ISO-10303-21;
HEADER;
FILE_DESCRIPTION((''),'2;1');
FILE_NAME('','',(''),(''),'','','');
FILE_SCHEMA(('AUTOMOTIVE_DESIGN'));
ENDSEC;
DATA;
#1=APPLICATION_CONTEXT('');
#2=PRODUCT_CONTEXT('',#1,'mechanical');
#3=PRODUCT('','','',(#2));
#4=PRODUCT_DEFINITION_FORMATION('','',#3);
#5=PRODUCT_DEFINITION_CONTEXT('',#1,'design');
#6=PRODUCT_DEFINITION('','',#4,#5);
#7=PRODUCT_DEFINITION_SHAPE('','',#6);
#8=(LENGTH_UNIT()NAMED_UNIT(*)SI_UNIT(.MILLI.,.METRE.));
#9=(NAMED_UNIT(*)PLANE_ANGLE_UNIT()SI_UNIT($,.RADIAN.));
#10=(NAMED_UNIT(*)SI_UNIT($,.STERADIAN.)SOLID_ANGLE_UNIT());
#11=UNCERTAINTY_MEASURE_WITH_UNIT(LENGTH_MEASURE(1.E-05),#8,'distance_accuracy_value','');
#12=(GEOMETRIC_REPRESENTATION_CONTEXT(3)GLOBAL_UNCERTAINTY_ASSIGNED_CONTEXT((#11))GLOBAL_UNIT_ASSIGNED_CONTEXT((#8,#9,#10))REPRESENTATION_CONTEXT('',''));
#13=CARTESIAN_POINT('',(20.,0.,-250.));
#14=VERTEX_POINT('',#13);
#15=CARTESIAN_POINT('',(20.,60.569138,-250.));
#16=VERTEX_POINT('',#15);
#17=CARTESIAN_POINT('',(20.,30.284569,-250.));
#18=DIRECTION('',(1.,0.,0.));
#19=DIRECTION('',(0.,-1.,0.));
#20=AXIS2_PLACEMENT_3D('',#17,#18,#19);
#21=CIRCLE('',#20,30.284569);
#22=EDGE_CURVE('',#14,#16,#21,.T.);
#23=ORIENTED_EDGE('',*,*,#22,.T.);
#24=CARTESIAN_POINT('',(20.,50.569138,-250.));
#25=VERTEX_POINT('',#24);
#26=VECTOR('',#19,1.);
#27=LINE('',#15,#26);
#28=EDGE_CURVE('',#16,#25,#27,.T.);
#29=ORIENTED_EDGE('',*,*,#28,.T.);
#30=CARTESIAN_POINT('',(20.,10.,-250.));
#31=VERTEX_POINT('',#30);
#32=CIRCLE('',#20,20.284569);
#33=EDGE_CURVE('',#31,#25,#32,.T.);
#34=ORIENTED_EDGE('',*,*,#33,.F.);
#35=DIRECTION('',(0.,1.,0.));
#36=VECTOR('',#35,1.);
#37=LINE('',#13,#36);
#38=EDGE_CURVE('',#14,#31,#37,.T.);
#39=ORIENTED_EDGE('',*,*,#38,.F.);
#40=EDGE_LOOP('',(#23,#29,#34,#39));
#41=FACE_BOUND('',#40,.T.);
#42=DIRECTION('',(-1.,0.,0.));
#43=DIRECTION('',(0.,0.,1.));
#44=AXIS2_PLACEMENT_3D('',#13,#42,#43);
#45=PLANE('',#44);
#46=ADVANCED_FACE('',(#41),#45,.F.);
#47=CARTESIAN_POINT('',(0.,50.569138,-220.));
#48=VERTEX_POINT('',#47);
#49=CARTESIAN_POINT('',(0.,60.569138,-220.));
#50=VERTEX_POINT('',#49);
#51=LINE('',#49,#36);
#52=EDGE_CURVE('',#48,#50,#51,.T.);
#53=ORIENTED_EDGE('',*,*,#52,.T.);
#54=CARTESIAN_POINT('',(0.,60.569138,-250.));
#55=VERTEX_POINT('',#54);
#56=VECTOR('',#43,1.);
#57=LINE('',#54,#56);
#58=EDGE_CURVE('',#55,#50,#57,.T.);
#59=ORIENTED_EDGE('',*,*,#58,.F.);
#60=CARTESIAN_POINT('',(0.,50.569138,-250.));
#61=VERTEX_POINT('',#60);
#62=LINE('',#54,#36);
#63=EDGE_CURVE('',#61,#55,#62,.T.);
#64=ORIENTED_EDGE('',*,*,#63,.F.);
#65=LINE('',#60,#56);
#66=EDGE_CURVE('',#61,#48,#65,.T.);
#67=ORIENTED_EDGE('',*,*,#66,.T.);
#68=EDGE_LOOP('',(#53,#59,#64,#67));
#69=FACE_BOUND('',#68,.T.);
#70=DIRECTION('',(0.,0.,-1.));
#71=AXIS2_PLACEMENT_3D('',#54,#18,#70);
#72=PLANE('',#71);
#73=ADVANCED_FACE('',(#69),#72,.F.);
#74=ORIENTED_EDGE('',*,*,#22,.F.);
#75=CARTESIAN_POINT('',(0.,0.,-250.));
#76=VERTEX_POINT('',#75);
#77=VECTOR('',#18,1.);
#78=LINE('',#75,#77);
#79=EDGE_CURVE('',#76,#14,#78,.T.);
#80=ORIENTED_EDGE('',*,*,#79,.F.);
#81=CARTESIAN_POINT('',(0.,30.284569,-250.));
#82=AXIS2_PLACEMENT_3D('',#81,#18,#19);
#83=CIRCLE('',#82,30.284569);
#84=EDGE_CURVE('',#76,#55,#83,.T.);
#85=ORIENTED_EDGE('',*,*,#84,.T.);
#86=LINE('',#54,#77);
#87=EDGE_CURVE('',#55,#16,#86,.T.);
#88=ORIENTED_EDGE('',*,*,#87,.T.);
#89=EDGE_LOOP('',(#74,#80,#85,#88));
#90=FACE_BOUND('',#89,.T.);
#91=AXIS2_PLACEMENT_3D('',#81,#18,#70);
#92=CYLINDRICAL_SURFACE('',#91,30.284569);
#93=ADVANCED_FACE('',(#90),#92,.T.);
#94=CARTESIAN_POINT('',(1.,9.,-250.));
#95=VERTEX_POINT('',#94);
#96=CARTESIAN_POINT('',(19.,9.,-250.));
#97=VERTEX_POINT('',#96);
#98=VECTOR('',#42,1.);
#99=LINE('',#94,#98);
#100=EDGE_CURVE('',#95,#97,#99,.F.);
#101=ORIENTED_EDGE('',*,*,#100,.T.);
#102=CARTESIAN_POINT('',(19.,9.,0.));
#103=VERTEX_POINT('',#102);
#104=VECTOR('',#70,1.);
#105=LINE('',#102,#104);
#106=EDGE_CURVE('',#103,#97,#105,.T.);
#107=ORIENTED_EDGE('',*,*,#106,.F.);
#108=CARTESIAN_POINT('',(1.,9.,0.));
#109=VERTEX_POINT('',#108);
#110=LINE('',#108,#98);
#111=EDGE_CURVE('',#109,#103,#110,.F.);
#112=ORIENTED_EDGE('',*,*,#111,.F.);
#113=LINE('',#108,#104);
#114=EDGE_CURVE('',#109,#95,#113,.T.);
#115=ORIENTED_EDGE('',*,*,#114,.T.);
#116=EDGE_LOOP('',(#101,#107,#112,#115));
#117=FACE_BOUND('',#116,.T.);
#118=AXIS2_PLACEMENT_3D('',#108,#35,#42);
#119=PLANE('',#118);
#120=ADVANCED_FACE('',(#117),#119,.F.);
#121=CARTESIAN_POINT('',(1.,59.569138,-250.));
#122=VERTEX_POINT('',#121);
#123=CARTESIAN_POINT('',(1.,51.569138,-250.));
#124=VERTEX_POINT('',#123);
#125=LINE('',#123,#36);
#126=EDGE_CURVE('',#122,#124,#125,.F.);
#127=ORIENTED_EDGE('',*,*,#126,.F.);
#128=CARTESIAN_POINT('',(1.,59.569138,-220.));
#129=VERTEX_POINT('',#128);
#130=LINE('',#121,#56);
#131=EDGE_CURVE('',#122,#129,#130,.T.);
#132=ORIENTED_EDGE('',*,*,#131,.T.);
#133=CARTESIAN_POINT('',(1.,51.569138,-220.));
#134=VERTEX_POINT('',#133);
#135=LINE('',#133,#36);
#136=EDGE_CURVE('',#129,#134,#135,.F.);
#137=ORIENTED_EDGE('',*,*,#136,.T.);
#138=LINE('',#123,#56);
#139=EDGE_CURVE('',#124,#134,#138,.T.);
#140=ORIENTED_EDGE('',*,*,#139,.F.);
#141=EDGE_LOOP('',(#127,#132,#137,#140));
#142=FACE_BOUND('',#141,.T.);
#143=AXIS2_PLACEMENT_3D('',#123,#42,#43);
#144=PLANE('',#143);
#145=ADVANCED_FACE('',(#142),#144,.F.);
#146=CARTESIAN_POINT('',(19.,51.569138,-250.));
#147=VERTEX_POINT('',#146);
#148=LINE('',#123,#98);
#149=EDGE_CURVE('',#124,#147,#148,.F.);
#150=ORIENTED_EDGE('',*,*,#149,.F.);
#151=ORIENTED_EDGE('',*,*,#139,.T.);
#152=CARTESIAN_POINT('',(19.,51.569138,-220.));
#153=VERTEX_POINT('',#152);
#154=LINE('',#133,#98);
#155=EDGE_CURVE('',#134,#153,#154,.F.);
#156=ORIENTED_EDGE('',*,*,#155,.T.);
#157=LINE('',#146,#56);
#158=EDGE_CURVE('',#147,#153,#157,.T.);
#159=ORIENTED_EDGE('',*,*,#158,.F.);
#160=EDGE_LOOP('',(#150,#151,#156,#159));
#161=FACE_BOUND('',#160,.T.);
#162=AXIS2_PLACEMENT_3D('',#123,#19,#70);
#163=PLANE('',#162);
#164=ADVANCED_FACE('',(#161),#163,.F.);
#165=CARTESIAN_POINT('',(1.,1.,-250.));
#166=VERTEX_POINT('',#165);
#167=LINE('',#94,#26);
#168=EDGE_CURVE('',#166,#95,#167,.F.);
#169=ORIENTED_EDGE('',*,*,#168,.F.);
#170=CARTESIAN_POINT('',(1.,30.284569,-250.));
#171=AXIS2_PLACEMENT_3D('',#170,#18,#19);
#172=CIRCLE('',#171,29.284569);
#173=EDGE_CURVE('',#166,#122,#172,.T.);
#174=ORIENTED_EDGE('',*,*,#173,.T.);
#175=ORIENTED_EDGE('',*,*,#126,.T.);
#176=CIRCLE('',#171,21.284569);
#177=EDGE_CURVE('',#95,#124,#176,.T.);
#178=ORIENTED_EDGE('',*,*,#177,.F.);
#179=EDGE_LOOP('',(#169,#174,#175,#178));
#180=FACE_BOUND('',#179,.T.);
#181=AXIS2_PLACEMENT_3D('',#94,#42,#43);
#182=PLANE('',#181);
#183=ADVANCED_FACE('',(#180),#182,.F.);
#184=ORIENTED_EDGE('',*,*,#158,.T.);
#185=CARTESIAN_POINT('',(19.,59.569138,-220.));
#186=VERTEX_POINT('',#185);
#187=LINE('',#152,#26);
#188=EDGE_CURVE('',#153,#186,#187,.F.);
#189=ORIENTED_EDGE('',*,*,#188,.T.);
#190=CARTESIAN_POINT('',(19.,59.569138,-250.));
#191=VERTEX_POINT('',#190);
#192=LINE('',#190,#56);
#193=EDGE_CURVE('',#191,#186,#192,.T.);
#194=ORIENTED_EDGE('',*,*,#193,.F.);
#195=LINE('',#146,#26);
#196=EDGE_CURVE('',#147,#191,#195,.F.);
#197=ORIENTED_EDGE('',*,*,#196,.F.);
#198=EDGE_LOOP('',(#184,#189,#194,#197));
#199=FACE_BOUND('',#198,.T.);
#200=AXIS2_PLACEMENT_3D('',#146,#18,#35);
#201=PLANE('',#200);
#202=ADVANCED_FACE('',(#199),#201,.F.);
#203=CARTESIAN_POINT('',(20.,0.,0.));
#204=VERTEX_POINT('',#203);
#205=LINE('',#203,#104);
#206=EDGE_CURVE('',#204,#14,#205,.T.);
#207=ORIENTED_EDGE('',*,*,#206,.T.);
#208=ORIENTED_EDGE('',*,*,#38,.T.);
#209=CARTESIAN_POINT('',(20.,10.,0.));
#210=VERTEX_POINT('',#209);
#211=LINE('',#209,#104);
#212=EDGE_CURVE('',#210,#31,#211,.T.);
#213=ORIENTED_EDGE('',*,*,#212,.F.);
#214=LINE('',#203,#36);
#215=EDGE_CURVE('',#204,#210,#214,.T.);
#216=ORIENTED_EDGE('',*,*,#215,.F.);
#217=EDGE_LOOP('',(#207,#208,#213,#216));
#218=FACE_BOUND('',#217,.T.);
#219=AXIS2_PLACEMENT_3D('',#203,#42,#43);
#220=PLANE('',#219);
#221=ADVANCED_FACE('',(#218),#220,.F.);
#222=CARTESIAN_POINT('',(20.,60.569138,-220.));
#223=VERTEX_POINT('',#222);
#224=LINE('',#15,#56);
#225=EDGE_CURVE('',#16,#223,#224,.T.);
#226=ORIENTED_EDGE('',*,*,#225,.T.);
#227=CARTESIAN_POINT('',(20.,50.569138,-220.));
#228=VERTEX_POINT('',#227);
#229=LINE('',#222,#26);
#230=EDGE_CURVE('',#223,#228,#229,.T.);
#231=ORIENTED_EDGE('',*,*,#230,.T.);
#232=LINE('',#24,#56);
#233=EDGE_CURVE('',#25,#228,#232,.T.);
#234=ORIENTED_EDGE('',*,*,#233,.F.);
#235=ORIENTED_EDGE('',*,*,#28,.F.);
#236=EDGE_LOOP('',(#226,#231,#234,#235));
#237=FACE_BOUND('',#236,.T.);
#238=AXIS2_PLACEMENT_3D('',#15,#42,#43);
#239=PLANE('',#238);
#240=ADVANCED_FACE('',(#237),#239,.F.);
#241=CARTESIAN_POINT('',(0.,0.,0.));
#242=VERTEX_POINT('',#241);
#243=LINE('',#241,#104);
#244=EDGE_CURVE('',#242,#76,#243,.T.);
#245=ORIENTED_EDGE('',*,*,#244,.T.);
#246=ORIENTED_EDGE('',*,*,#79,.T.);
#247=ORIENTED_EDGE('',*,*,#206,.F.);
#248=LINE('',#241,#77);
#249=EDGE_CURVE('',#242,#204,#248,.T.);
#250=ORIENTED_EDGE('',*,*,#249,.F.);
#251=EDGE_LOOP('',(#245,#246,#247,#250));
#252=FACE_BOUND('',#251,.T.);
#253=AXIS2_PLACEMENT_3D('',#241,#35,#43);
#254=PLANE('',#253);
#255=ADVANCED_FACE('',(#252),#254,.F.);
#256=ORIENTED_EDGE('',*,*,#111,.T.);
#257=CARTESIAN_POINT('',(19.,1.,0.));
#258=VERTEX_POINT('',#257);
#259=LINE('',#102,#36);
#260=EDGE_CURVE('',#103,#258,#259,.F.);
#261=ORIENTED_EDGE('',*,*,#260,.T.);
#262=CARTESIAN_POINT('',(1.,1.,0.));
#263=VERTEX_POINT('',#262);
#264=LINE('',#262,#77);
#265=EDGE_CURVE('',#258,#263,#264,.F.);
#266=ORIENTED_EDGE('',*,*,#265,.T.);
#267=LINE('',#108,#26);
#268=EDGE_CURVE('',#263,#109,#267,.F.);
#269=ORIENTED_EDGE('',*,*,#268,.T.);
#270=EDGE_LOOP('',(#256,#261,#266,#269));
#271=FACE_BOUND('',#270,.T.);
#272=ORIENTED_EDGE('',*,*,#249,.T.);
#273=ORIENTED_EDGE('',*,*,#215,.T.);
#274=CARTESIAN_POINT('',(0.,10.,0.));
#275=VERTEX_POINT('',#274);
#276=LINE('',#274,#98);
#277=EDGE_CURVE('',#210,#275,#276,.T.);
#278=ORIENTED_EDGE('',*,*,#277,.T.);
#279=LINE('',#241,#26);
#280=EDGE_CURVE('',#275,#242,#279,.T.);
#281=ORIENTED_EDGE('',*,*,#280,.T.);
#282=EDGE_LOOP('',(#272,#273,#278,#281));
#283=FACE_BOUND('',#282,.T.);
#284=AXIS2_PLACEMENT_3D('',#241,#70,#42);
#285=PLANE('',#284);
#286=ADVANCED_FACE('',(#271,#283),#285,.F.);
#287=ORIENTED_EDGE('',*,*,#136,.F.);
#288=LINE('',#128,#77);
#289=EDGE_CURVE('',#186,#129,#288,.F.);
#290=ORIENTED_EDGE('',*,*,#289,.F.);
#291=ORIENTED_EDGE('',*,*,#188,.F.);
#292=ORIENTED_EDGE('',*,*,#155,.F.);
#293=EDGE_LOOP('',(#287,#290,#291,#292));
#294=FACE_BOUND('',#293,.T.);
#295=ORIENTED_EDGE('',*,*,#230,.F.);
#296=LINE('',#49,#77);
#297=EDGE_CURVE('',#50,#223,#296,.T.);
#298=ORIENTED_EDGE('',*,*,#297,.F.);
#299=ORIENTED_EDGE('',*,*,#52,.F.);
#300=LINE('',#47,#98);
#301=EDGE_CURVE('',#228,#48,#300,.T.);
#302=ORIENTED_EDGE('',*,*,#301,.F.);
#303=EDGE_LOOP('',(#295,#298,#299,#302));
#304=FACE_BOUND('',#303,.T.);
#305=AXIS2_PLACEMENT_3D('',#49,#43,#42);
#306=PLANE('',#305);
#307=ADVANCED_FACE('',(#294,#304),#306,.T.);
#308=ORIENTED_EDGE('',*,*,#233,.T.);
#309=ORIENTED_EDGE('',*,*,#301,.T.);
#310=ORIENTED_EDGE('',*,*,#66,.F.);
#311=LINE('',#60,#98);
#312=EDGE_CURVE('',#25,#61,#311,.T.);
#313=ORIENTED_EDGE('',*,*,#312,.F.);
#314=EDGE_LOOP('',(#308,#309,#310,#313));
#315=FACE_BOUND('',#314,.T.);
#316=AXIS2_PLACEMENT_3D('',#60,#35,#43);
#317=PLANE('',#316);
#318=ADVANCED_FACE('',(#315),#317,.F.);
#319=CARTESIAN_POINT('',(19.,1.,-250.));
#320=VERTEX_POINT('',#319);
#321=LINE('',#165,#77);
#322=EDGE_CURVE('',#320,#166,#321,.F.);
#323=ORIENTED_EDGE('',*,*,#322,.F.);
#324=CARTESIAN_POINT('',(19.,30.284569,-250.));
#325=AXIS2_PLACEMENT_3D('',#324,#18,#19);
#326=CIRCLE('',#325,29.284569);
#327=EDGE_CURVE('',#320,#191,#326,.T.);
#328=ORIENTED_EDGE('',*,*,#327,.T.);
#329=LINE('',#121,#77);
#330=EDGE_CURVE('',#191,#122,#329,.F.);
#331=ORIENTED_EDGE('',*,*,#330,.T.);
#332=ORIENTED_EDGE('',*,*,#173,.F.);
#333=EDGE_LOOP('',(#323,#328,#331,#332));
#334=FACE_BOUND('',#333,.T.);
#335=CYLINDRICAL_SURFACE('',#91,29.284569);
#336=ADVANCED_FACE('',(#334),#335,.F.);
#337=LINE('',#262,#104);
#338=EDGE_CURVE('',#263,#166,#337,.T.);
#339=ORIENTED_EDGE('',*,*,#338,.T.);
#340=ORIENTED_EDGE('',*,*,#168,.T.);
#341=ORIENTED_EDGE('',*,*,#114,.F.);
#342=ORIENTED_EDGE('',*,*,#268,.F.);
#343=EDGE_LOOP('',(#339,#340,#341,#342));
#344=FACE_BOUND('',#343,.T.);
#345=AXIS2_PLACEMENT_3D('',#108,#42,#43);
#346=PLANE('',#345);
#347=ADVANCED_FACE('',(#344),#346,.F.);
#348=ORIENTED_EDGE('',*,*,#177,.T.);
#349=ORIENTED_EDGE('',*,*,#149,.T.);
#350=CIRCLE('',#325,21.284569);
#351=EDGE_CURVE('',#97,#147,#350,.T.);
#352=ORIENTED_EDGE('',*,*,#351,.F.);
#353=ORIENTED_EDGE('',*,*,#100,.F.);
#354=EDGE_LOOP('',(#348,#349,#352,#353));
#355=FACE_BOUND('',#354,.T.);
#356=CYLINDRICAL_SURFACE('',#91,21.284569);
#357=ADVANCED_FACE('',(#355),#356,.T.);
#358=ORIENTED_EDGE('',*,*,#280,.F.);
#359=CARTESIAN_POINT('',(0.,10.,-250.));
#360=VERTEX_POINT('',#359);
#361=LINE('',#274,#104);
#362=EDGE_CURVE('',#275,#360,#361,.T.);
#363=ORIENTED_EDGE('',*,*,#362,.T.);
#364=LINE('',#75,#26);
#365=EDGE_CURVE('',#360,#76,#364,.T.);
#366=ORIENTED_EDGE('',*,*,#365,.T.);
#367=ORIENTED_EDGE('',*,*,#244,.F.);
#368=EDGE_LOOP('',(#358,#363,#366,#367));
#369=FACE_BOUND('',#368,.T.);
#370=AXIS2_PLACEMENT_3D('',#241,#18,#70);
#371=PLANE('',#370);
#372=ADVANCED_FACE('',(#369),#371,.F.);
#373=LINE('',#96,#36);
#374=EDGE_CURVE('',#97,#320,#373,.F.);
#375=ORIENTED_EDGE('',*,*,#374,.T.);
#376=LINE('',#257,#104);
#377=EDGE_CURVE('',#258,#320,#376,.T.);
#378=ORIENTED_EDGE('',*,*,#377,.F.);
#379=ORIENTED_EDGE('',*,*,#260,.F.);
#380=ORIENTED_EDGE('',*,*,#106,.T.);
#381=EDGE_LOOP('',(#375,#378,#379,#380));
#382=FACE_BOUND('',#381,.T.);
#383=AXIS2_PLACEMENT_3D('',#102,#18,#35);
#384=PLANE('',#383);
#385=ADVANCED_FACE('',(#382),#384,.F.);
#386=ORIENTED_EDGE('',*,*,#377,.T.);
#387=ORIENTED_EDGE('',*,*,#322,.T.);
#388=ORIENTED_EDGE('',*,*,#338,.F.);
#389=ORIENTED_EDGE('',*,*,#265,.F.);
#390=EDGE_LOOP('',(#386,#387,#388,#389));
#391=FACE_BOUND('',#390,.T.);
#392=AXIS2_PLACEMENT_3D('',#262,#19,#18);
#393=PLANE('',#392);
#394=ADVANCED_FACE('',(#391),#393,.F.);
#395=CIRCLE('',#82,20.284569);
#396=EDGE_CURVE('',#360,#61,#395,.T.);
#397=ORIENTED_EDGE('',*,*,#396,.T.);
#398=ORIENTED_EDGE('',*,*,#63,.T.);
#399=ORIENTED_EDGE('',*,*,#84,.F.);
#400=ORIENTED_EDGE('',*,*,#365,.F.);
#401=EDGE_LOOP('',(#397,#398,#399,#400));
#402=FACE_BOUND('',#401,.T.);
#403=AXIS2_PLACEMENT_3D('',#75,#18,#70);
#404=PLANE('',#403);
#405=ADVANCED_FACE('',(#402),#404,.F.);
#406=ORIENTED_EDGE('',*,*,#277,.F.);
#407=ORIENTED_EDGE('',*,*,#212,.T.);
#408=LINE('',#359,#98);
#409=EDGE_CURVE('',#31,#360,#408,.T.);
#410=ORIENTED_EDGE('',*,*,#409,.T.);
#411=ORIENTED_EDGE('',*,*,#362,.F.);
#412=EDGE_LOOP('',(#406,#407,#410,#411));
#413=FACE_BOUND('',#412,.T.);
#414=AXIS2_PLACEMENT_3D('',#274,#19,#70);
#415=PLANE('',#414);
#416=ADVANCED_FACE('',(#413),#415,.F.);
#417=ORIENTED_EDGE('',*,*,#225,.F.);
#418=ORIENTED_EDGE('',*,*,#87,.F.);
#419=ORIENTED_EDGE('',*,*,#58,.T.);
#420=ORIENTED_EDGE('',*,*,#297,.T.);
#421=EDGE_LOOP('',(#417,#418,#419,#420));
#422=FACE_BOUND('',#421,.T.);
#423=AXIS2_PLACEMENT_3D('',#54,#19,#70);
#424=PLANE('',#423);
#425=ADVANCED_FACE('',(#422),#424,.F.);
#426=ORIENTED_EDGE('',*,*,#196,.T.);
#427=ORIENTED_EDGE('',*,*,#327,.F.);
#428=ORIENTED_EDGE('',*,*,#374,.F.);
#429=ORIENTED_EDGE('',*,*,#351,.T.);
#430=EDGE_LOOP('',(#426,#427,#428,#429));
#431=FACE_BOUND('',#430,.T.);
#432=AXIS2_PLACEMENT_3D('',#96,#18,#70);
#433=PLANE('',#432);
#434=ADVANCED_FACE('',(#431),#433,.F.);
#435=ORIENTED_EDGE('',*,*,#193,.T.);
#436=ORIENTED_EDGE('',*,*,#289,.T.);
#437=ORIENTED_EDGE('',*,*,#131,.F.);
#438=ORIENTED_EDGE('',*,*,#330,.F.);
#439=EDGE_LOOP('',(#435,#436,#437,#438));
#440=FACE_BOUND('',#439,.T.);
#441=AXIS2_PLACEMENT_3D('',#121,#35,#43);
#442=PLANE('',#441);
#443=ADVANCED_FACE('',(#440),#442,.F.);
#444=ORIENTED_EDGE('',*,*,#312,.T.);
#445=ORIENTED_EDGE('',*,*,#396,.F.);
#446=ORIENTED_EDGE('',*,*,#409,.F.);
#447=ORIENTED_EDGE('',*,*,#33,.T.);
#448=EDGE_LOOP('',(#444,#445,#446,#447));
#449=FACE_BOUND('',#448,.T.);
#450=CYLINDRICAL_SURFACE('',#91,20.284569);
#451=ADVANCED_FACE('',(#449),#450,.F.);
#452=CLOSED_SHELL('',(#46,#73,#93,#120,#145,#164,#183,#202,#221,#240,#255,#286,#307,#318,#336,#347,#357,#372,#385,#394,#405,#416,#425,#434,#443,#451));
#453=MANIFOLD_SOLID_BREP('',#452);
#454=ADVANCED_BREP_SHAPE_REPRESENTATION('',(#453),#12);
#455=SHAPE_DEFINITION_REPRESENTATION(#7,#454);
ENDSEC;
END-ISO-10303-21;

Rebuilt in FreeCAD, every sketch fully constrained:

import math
import FreeCAD as App
import Part
import Sketcher
from FreeCAD import Vector

doc = App.newDocument("Part")
params = doc.addObject("Spreadsheet::Sheet", "Params")
for row, (alias, value) in enumerate([
    ("sketch1_width", "20 mm"),
    ("sketch1_width2", "18 mm"),
    ("sketch1_height", "10 mm"),
    ("sketch1_height2", "8 mm"),
    ("sketch2_radius", "28 mm"),
    ("sketch2_height", "250 mm"),
    ("sketch2_height2", "30 mm"),
], start=1):
    params.set(f"A{row}", alias)
    params.set(f"B{row}", "=" + value)
    params.setAlias(f"B{row}", alias)

body = doc.addObject("PartDesign::Body", "Body")

# Sketch on XY plane
sketch1 = doc.addObject("Sketcher::SketchObject", "Sketch")
body.addObject(sketch1)
sketch1.AttachmentSupport = (doc.XY_Plane, [""])
sketch1.MapMode = "FlatFace"
sketch1.addGeometry(Part.LineSegment(Vector(0, 10, 0), Vector(0, 0, 0)), False)
sketch1.addGeometry(Part.LineSegment(Vector(0, 0, 0), Vector(20, 0, 0)), False)
sketch1.addGeometry(Part.LineSegment(Vector(20, 0, 0), Vector(20, 10, 0)), False)
sketch1.addGeometry(Part.LineSegment(Vector(20, 10, 0), Vector(0, 10, 0)), False)
sketch1.addGeometry(Part.LineSegment(Vector(19, 1, 0), Vector(1, 1, 0)), False)
sketch1.addGeometry(Part.LineSegment(Vector(1, 1, 0), Vector(1, 9, 0)), False)
sketch1.addGeometry(Part.LineSegment(Vector(1, 9, 0), Vector(19, 9, 0)), False)
sketch1.addGeometry(Part.LineSegment(Vector(19, 9, 0), Vector(19, 1, 0)), False)
sketch1.addConstraint(Sketcher.Constraint("Coincident", 0, 2, 1, 1))
sketch1.addConstraint(Sketcher.Constraint("Coincident", 1, 2, 2, 1))
sketch1.addConstraint(Sketcher.Constraint("Coincident", 2, 2, 3, 1))
sketch1.addConstraint(Sketcher.Constraint("Coincident", 3, 2, 0, 1))
sketch1.addConstraint(Sketcher.Constraint("Coincident", 4, 2, 5, 1))
sketch1.addConstraint(Sketcher.Constraint("Coincident", 5, 2, 6, 1))
sketch1.addConstraint(Sketcher.Constraint("Coincident", 6, 2, 7, 1))
sketch1.addConstraint(Sketcher.Constraint("Coincident", 7, 2, 4, 1))
sketch1.addConstraint(Sketcher.Constraint("Vertical", 0))
sketch1.addConstraint(Sketcher.Constraint("Horizontal", 1))
sketch1.addConstraint(Sketcher.Constraint("Vertical", 2))
sketch1.addConstraint(Sketcher.Constraint("Horizontal", 3))
sketch1.addConstraint(Sketcher.Constraint("Horizontal", 4))
sketch1.addConstraint(Sketcher.Constraint("Vertical", 5))
sketch1.addConstraint(Sketcher.Constraint("Horizontal", 6))
sketch1.addConstraint(Sketcher.Constraint("Vertical", 7))
sketch1.addConstraint(Sketcher.Constraint("Coincident", 0, 2, -1, 1))
sketch1.addConstraint(Sketcher.Constraint("DistanceX", 1, 1, 1, 2, 20.0))
sketch1.addConstraint(Sketcher.Constraint("DistanceX", 4, 2, 4, 1, 18.0))
sketch1.addConstraint(Sketcher.Constraint("DistanceY", 0, 2, 0, 1, 10.0))
sketch1.addConstraint(Sketcher.Constraint("DistanceY", 5, 1, 5, 2, 8.0))
sketch1.addConstraint(Sketcher.Constraint("DistanceX", -1, 1, 4, 2, 1.0))
sketch1.addConstraint(Sketcher.Constraint("DistanceY", -1, 1, 4, 2, 1.0))
sketch1.setExpression("Constraints[17]", "Params.sketch1_width")
sketch1.setExpression("Constraints[18]", "Params.sketch1_width2")
sketch1.setExpression("Constraints[19]", "Params.sketch1_height")
sketch1.setExpression("Constraints[20]", "Params.sketch1_height2")

# Sketch on YZ plane
sketch2 = doc.addObject("Sketcher::SketchObject", "Sketch001")
body.addObject(sketch2)
sketch2.AttachmentSupport = (doc.YZ_Plane, [""])
sketch2.MapMode = "FlatFace"
sketch2.addGeometry(Part.LineSegment(Vector(2, 0, 0), Vector(2, -250, 0)), False)
sketch2.addGeometry(Part.ArcOfCircle(Part.Circle(Vector(30, -250, 0), Vector(0, 0, 1), 28), math.radians(180), math.radians(360)), False)
sketch2.addGeometry(Part.LineSegment(Vector(58, -250, 0), Vector(58, -220, 0)), False)
sketch2.addConstraint(Sketcher.Constraint("Tangent", 0, 2, 1, 1))
sketch2.addConstraint(Sketcher.Constraint("Tangent", 1, 2, 2, 1))
sketch2.addConstraint(Sketcher.Constraint("Vertical", 0))
sketch2.addConstraint(Sketcher.Constraint("Vertical", 2))
sketch2.addConstraint(Sketcher.Constraint("PointOnObject", 0, 1, -1))
sketch2.addConstraint(Sketcher.Constraint("Radius", 1, 28.0))
sketch2.addConstraint(Sketcher.Constraint("DistanceY", 0, 2, 0, 1, 250.0))
sketch2.addConstraint(Sketcher.Constraint("DistanceY", 2, 1, 2, 2, 30.0))
sketch2.addConstraint(Sketcher.Constraint("DistanceX", -1, 1, 1, 3, 30.284569))
sketch2.setExpression("Constraints[5]", "Params.sketch2_radius")
sketch2.setExpression("Constraints[6]", "Params.sketch2_height")
sketch2.setExpression("Constraints[7]", "Params.sketch2_height2")
doc.recompute()

additivepipe = doc.addObject("PartDesign::AdditivePipe", "AdditivePipe")
body.addObject(additivepipe)
additivepipe.Profile = sketch1
additivepipe.Spine = (sketch2, ["Edge1", "Edge2", "Edge3"])

doc.recompute()
